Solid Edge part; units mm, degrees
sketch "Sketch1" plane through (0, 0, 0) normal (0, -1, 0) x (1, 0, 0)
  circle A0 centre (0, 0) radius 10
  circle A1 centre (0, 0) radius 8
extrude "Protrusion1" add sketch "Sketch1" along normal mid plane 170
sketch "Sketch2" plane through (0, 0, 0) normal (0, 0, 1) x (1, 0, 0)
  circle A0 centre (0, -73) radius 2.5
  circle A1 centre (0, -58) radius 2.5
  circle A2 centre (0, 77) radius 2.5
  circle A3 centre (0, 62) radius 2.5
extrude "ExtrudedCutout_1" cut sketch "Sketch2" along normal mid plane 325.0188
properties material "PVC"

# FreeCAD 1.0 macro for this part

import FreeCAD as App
import Part
import Sketcher

V = App.Vector
Q = App.Units.Quantity

doc = App.newDocument("Part")
body = doc.addObject("PartDesign::Body", "Body")

sketch1 = body.newObject("Sketcher::SketchObject", "Sketch")
sketch1.AttachmentSupport = (doc.getObject("XZ_Plane"), [""])
sketch1.MapMode = "FlatFace"
sketch1.addGeometry([
    Part.Circle(V(0, 0, 0), V(0, 0, 1), 10),
    Part.Circle(V(0, 0, 0), V(0, 0, 1), 8),
], False)
sketch1.addConstraint([
    Sketcher.Constraint("Coincident", 0, 3, -1, 1),
    Sketcher.Constraint("Coincident", 1, 3, -1, 1),
    Sketcher.Constraint("Diameter", 0, Q("20 mm")),
    Sketcher.Constraint("Diameter", 1, Q("16 mm")),
])
pad1 = body.newObject("PartDesign::Pad", "Pad")
pad1.Profile = sketch1
pad1.Length = 170
pad1.Midplane = True

sketch2 = body.newObject("Sketcher::SketchObject", "Sketch001")
sketch2.AttachmentSupport = (doc.getObject("XY_Plane"), [""])
sketch2.MapMode = "FlatFace"
sketch2.addGeometry([
    Part.Circle(V(0, -73, 0), V(0, 0, 1), 2.5),
    Part.Circle(V(0, -58, 0), V(0, 0, 1), 2.5),
    Part.Circle(V(0, 77, 0), V(0, 0, 1), 2.5),
    Part.Circle(V(0, 62, 0), V(0, 0, 1), 2.5),
], False)
sketch2.addConstraint([
    Sketcher.Constraint("Equal", 0, 1),
    Sketcher.Constraint("Equal", 1, 2),
    Sketcher.Constraint("Equal", 2, 3),
    Sketcher.Constraint("PointOnObject", 0, 3, -2),
    Sketcher.Constraint("PointOnObject", 1, 3, -2),
    Sketcher.Constraint("PointOnObject", 2, 3, -2),
    Sketcher.Constraint("PointOnObject", 3, 3, -2),
    Sketcher.Constraint("Diameter", 0, Q("5 mm")),
    Sketcher.Constraint("DistanceY", 0, 3, -1, 1, Q("73 mm")),
    Sketcher.Constraint("DistanceY", 1, 3, -1, 1, Q("58 mm")),
    Sketcher.Constraint("DistanceY", -1, 1, 2, 3, Q("77 mm")),
    Sketcher.Constraint("DistanceY", -1, 1, 3, 3, Q("62 mm")),
])
pocket1 = body.newObject("PartDesign::Pocket", "Pocket")
pocket1.Profile = sketch2
pocket1.Length = 325.0188
pocket1.Midplane = True

doc.recompute()
